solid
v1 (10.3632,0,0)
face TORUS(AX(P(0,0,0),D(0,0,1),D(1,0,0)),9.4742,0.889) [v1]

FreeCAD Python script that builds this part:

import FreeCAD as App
import Part
import Sketcher
from FreeCAD import Vector
Q = App.Units.Quantity

doc = App.newDocument("Part")
body = doc.addObject("PartDesign::Body", "Body")

sketch1 = body.newObject("Sketcher::SketchObject", "Sketch")
sketch1.AttachmentSupport = (doc.getObject("YZ_Plane"), [""])
sketch1.MapMode = "FlatFace"
sketch1.addGeometry(Part.Circle(Vector(-9.5, 0, 0), Vector(0, 0, 1), 0.9), False)
sketch1.addConstraint([
    Sketcher.Constraint("PointOnObject", 0, 3, -1),
    Sketcher.Constraint("Diameter", 0, Q("0.07 in")),
    Sketcher.Constraint("DistanceX", 0, 3, -1, 1, Q("0.373 in")),
])
revolution = body.newObject("PartDesign::Revolution", "Revolution")
revolution.Profile = sketch1
revolution.ReferenceAxis = (sketch1, ["V_Axis"])
revolution.Angle = 360

doc.recompute()
